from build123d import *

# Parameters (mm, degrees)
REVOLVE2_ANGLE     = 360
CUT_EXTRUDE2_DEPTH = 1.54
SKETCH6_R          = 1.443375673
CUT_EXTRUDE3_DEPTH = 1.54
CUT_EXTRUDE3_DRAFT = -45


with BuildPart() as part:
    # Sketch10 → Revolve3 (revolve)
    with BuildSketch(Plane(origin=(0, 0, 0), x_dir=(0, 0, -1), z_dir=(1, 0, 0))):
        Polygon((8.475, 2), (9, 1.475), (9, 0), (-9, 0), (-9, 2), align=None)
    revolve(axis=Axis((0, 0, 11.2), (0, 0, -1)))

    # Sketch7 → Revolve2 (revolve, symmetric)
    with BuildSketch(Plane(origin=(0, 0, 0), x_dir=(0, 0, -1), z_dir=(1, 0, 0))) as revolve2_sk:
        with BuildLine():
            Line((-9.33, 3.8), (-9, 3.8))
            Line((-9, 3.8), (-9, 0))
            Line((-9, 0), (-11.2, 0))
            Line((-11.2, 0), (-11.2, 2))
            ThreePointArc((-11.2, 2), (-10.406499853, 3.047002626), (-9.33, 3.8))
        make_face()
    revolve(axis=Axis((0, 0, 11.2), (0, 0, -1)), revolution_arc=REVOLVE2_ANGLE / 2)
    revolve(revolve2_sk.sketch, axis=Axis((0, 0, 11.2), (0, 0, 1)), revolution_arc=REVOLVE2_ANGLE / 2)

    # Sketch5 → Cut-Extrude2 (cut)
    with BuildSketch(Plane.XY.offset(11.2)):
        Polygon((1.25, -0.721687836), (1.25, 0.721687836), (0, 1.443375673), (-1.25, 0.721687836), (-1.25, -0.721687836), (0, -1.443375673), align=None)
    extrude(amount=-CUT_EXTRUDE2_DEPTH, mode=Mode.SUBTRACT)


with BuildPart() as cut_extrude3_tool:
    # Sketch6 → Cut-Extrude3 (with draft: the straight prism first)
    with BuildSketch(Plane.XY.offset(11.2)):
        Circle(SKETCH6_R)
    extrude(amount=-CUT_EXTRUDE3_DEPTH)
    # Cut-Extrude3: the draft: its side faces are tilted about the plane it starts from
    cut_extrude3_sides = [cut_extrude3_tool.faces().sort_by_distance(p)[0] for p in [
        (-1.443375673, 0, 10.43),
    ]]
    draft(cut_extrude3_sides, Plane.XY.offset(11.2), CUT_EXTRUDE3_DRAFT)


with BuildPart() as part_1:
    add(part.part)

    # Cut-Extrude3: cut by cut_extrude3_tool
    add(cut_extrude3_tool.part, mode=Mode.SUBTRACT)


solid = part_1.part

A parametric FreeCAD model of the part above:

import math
import FreeCAD as App
import Part
import Sketcher

V = App.Vector
Q = App.Units.Quantity


def faces_at(feature, points):
    """Names of the faces that lie closest to the given points."""
    faces = feature.Shape.Faces
    near = lambda p: min(range(len(faces)), key=lambda i: faces[i].distToShape(Part.Vertex(*p))[0])
    return sorted({f"Face{near(p) + 1}" for p in points})


def add_polygon(sketch, points):
    """Adds a closed chain of lines whose ends are joined by coincident constraints."""
    first, n = sketch.GeometryCount, len(points)
    for a, b in zip(points, points[1:] + points[:1]):
        sketch.addGeometry(Part.LineSegment(App.Vector(*a, 0), App.Vector(*b, 0)), False)
    for i in range(n):
        sketch.addConstraint(Sketcher.Constraint("Coincident", first + i, 2, first + (i + 1) % n, 1))

doc = App.newDocument("Part")
body = doc.addObject("PartDesign::Body", "Body")

sketch1 = doc.addObject("Sketcher::SketchObject", "Sketch")
body.addObject(sketch1)
sketch1.AttachmentSupport = (doc.YZ_Plane, [""])
sketch1.MapMode = "FlatFace"
add_polygon(sketch1, [(1.5, -9), (2, -8.5), (2, 9), (0, 9), (0, -9)])
sketch1.addConstraint([
    Sketcher.Constraint("Vertical", 1),
    Sketcher.Constraint("Horizontal", 2),
    Sketcher.Constraint("Vertical", 3),
    Sketcher.Constraint("Horizontal", 4),
    Sketcher.Constraint("Symmetric", 2, 2, 3, 2, -1, 1),
    Sketcher.Constraint("DistanceX", 2, 2, 2, 1, 2.0),
    Sketcher.Constraint("DistanceY", 3, 2, 3, 1, 18.0),
    Sketcher.Constraint("Angle", 0, Q("45 deg")),
    Sketcher.Constraint("DistanceX", 4, 1, 4, 2, 1.475),
])
revolution = doc.addObject("PartDesign::Revolution", "Revolution")
body.addObject(revolution)
revolution.Profile = sketch1
revolution.ReferenceAxis = (sketch1, ["V_Axis"])
revolution.Angle = 360

sketch2 = doc.addObject("Sketcher::SketchObject", "Sketch001")
body.addObject(sketch2)
sketch2.AttachmentSupport = (doc.YZ_Plane, [""])
sketch2.MapMode = "FlatFace"
sketch2.addGeometry([
    Part.LineSegment(V(3.8, 9, 0), V(3.8, 9.33, 0)),
    Part.ArcOfCircle(Part.Circle(V(0, 7.47, 0), V(0, 0, 1), 4.23), math.radians(26), math.radians(62)),
    Part.LineSegment(V(2, 11.2, 0), V(0, 11.2, 0)),
    Part.LineSegment(V(0, 11.2, 0), V(0, 9, 0)),
    Part.LineSegment(V(0, 9, 0), V(3.8, 9, 0)),
], False)
sketch2.addConstraint([
    Sketcher.Constraint("Coincident", 0, 2, 1, 1),
    Sketcher.Constraint("Coincident", 1, 2, 2, 1),
    Sketcher.Constraint("Coincident", 2, 2, 3, 1),
    Sketcher.Constraint("Coincident", 3, 2, 4, 1),
    Sketcher.Constraint("Coincident", 4, 2, 0, 1),
    Sketcher.Constraint("Vertical", 0),
    Sketcher.Constraint("Horizontal", 2),
    Sketcher.Constraint("Vertical", 3),
    Sketcher.Constraint("Horizontal", 4),
    Sketcher.Constraint("PointOnObject", 1, 3, -2),
    Sketcher.Constraint("PointOnObject", 2, 2, -2),
    Sketcher.Constraint("DistanceX", 2, 2, 2, 1, 2.0),
    Sketcher.Constraint("DistanceX", 4, 1, 4, 2, 3.8),
    Sketcher.Constraint("DistanceY", 3, 2, 3, 1, 2.2),
    Sketcher.Constraint("DistanceY", -1, 1, 3, 2, 9.0),
    Sketcher.Constraint("DistanceY", 0, 1, 0, 2, 0.33),
])
revolution2 = doc.addObject("PartDesign::Revolution", "Revolution001")
body.addObject(revolution2)
revolution2.Profile = sketch2
revolution2.ReferenceAxis = (sketch2, ["V_Axis"])
revolution2.Angle = 180
revolution2.Reversed = True

sketch3 = doc.addObject("Sketcher::SketchObject", "Sketch002")
body.addObject(sketch3)
sketch3.AttachmentSupport = (doc.YZ_Plane, [""])
sketch3.MapMode = "FlatFace"
sketch3.addGeometry([
    Part.LineSegment(V(3.8, 9, 0), V(3.8, 9.33, 0)),
    Part.ArcOfCircle(Part.Circle(V(0, 7.47, 0), V(0, 0, 1), 4.23), math.radians(26), math.radians(62)),
    Part.LineSegment(V(2, 11.2, 0), V(0, 11.2, 0)),
    Part.LineSegment(V(0, 11.2, 0), V(0, 9, 0)),
    Part.LineSegment(V(0, 9, 0), V(3.8, 9, 0)),
], False)
sketch3.addConstraint([
    Sketcher.Constraint("Coincident", 0, 2, 1, 1),
    Sketcher.Constraint("Coincident", 1, 2, 2, 1),
    Sketcher.Constraint("Coincident", 2, 2, 3, 1),
    Sketcher.Constraint("Coincident", 3, 2, 4, 1),
    Sketcher.Constraint("Coincident", 4, 2, 0, 1),
    Sketcher.Constraint("Vertical", 0),
    Sketcher.Constraint("Horizontal", 2),
    Sketcher.Constraint("Vertical", 3),
    Sketcher.Constraint("Horizontal", 4),
    Sketcher.Constraint("PointOnObject", 1, 3, -2),
    Sketcher.Constraint("PointOnObject", 2, 2, -2),
    Sketcher.Constraint("DistanceX", 2, 2, 2, 1, 2.0),
    Sketcher.Constraint("DistanceX", 4, 1, 4, 2, 3.8),
    Sketcher.Constraint("DistanceY", 3, 2, 3, 1, 2.2),
    Sketcher.Constraint("DistanceY", -1, 1, 3, 2, 9.0),
    Sketcher.Constraint("DistanceY", 0, 1, 0, 2, 0.33),
])
revolution3 = doc.addObject("PartDesign::Revolution", "Revolution002")
body.addObject(revolution3)
revolution3.Profile = sketch3
revolution3.ReferenceAxis = (sketch3, ["V_Axis"])
revolution3.Angle = 180

sketch4 = doc.addObject("Sketcher::SketchObject", "Sketch003")
body.addObject(sketch4)
sketch4.AttachmentSupport = (doc.XY_Plane, [""])
sketch4.MapMode = "FlatFace"
sketch4.AttachmentOffset = App.Placement(V(0, 0, 11.2), App.Rotation())
add_polygon(sketch4, [(1.2, -0.7), (1.2, 0.7), (0, 1.4), (-1.2, 0.7), (-1.2, -0.7), (0, -1.4)])
sketch4.addConstraint([
    Sketcher.Constraint("Vertical", 0),
    Sketcher.Constraint("Vertical", 3),
    Sketcher.Constraint("Symmetric", 0, 2, 3, 2, -1, 1),
    Sketcher.Constraint("Symmetric", 1, 2, 4, 2, -1, 1),
    Sketcher.Constraint("PointOnObject", 1, 2, -2),
    Sketcher.Constraint("Parallel", 2, 5),
    Sketcher.Constraint("Horizontal", 0, 2, 2, 2),
    Sketcher.Constraint("Angle", 1, Q("150 deg")),
    Sketcher.Constraint("DistanceX", 2, 2, 0, 2, 2.5),
    Sketcher.Constraint("DistanceY", 0, 1, 0, 2, 1.443376),
])
pocket1 = doc.addObject("PartDesign::Pocket", "Pocket")
body.addObject(pocket1)
pocket1.Profile = sketch4
pocket1.Length = 1.54
body2 = doc.addObject("PartDesign::Body", "Body001")

sketch5 = doc.addObject("Sketcher::SketchObject", "Sketch004")
body2.addObject(sketch5)
sketch5.AttachmentSupport = (doc.getObject("XY_Plane001"), [""])
sketch5.MapMode = "FlatFace"
sketch5.AttachmentOffset = App.Placement(V(0, 0, 11.2), App.Rotation())
sketch5.addGeometry(Part.Circle(V(0, 0, 0), V(0, 0, 1), 1.4), False)
sketch5.addConstraint([
    Sketcher.Constraint("Coincident", 0, 3, -1, 1),
    Sketcher.Constraint("Diameter", 0, 2.886751),
])
pad1 = doc.addObject("PartDesign::Pad", "Pad")
body2.addObject(pad1)
pad1.Profile = sketch5
pad1.Length = 1.54
pad1.Reversed = True
doc.recompute()

datumplane = doc.addObject("PartDesign::Plane", "DatumPlane")
body2.addObject(datumplane)
datumplane.AttachmentSupport = (doc.getObject("XY_Plane001"), [""])
datumplane.MapMode = "FlatFace"
datumplane.AttachmentOffset = App.Placement(V(0, 0, 11.2), App.Rotation())
draft = doc.addObject("PartDesign::Draft", "Draft")
body2.addObject(draft)
draft.Base = (pad1, faces_at(pad1, [(-1.443, 0, 10.43)]))
draft.NeutralPlane = (datumplane, [""])
draft.Angle = 45
draft.Reversed = True
doc.recompute()

boolean = doc.addObject("PartDesign::Boolean", "Boolean")
body.addObject(boolean)
boolean.Type = "Cut"
boolean.addObjects([body2])

doc.recompute()
